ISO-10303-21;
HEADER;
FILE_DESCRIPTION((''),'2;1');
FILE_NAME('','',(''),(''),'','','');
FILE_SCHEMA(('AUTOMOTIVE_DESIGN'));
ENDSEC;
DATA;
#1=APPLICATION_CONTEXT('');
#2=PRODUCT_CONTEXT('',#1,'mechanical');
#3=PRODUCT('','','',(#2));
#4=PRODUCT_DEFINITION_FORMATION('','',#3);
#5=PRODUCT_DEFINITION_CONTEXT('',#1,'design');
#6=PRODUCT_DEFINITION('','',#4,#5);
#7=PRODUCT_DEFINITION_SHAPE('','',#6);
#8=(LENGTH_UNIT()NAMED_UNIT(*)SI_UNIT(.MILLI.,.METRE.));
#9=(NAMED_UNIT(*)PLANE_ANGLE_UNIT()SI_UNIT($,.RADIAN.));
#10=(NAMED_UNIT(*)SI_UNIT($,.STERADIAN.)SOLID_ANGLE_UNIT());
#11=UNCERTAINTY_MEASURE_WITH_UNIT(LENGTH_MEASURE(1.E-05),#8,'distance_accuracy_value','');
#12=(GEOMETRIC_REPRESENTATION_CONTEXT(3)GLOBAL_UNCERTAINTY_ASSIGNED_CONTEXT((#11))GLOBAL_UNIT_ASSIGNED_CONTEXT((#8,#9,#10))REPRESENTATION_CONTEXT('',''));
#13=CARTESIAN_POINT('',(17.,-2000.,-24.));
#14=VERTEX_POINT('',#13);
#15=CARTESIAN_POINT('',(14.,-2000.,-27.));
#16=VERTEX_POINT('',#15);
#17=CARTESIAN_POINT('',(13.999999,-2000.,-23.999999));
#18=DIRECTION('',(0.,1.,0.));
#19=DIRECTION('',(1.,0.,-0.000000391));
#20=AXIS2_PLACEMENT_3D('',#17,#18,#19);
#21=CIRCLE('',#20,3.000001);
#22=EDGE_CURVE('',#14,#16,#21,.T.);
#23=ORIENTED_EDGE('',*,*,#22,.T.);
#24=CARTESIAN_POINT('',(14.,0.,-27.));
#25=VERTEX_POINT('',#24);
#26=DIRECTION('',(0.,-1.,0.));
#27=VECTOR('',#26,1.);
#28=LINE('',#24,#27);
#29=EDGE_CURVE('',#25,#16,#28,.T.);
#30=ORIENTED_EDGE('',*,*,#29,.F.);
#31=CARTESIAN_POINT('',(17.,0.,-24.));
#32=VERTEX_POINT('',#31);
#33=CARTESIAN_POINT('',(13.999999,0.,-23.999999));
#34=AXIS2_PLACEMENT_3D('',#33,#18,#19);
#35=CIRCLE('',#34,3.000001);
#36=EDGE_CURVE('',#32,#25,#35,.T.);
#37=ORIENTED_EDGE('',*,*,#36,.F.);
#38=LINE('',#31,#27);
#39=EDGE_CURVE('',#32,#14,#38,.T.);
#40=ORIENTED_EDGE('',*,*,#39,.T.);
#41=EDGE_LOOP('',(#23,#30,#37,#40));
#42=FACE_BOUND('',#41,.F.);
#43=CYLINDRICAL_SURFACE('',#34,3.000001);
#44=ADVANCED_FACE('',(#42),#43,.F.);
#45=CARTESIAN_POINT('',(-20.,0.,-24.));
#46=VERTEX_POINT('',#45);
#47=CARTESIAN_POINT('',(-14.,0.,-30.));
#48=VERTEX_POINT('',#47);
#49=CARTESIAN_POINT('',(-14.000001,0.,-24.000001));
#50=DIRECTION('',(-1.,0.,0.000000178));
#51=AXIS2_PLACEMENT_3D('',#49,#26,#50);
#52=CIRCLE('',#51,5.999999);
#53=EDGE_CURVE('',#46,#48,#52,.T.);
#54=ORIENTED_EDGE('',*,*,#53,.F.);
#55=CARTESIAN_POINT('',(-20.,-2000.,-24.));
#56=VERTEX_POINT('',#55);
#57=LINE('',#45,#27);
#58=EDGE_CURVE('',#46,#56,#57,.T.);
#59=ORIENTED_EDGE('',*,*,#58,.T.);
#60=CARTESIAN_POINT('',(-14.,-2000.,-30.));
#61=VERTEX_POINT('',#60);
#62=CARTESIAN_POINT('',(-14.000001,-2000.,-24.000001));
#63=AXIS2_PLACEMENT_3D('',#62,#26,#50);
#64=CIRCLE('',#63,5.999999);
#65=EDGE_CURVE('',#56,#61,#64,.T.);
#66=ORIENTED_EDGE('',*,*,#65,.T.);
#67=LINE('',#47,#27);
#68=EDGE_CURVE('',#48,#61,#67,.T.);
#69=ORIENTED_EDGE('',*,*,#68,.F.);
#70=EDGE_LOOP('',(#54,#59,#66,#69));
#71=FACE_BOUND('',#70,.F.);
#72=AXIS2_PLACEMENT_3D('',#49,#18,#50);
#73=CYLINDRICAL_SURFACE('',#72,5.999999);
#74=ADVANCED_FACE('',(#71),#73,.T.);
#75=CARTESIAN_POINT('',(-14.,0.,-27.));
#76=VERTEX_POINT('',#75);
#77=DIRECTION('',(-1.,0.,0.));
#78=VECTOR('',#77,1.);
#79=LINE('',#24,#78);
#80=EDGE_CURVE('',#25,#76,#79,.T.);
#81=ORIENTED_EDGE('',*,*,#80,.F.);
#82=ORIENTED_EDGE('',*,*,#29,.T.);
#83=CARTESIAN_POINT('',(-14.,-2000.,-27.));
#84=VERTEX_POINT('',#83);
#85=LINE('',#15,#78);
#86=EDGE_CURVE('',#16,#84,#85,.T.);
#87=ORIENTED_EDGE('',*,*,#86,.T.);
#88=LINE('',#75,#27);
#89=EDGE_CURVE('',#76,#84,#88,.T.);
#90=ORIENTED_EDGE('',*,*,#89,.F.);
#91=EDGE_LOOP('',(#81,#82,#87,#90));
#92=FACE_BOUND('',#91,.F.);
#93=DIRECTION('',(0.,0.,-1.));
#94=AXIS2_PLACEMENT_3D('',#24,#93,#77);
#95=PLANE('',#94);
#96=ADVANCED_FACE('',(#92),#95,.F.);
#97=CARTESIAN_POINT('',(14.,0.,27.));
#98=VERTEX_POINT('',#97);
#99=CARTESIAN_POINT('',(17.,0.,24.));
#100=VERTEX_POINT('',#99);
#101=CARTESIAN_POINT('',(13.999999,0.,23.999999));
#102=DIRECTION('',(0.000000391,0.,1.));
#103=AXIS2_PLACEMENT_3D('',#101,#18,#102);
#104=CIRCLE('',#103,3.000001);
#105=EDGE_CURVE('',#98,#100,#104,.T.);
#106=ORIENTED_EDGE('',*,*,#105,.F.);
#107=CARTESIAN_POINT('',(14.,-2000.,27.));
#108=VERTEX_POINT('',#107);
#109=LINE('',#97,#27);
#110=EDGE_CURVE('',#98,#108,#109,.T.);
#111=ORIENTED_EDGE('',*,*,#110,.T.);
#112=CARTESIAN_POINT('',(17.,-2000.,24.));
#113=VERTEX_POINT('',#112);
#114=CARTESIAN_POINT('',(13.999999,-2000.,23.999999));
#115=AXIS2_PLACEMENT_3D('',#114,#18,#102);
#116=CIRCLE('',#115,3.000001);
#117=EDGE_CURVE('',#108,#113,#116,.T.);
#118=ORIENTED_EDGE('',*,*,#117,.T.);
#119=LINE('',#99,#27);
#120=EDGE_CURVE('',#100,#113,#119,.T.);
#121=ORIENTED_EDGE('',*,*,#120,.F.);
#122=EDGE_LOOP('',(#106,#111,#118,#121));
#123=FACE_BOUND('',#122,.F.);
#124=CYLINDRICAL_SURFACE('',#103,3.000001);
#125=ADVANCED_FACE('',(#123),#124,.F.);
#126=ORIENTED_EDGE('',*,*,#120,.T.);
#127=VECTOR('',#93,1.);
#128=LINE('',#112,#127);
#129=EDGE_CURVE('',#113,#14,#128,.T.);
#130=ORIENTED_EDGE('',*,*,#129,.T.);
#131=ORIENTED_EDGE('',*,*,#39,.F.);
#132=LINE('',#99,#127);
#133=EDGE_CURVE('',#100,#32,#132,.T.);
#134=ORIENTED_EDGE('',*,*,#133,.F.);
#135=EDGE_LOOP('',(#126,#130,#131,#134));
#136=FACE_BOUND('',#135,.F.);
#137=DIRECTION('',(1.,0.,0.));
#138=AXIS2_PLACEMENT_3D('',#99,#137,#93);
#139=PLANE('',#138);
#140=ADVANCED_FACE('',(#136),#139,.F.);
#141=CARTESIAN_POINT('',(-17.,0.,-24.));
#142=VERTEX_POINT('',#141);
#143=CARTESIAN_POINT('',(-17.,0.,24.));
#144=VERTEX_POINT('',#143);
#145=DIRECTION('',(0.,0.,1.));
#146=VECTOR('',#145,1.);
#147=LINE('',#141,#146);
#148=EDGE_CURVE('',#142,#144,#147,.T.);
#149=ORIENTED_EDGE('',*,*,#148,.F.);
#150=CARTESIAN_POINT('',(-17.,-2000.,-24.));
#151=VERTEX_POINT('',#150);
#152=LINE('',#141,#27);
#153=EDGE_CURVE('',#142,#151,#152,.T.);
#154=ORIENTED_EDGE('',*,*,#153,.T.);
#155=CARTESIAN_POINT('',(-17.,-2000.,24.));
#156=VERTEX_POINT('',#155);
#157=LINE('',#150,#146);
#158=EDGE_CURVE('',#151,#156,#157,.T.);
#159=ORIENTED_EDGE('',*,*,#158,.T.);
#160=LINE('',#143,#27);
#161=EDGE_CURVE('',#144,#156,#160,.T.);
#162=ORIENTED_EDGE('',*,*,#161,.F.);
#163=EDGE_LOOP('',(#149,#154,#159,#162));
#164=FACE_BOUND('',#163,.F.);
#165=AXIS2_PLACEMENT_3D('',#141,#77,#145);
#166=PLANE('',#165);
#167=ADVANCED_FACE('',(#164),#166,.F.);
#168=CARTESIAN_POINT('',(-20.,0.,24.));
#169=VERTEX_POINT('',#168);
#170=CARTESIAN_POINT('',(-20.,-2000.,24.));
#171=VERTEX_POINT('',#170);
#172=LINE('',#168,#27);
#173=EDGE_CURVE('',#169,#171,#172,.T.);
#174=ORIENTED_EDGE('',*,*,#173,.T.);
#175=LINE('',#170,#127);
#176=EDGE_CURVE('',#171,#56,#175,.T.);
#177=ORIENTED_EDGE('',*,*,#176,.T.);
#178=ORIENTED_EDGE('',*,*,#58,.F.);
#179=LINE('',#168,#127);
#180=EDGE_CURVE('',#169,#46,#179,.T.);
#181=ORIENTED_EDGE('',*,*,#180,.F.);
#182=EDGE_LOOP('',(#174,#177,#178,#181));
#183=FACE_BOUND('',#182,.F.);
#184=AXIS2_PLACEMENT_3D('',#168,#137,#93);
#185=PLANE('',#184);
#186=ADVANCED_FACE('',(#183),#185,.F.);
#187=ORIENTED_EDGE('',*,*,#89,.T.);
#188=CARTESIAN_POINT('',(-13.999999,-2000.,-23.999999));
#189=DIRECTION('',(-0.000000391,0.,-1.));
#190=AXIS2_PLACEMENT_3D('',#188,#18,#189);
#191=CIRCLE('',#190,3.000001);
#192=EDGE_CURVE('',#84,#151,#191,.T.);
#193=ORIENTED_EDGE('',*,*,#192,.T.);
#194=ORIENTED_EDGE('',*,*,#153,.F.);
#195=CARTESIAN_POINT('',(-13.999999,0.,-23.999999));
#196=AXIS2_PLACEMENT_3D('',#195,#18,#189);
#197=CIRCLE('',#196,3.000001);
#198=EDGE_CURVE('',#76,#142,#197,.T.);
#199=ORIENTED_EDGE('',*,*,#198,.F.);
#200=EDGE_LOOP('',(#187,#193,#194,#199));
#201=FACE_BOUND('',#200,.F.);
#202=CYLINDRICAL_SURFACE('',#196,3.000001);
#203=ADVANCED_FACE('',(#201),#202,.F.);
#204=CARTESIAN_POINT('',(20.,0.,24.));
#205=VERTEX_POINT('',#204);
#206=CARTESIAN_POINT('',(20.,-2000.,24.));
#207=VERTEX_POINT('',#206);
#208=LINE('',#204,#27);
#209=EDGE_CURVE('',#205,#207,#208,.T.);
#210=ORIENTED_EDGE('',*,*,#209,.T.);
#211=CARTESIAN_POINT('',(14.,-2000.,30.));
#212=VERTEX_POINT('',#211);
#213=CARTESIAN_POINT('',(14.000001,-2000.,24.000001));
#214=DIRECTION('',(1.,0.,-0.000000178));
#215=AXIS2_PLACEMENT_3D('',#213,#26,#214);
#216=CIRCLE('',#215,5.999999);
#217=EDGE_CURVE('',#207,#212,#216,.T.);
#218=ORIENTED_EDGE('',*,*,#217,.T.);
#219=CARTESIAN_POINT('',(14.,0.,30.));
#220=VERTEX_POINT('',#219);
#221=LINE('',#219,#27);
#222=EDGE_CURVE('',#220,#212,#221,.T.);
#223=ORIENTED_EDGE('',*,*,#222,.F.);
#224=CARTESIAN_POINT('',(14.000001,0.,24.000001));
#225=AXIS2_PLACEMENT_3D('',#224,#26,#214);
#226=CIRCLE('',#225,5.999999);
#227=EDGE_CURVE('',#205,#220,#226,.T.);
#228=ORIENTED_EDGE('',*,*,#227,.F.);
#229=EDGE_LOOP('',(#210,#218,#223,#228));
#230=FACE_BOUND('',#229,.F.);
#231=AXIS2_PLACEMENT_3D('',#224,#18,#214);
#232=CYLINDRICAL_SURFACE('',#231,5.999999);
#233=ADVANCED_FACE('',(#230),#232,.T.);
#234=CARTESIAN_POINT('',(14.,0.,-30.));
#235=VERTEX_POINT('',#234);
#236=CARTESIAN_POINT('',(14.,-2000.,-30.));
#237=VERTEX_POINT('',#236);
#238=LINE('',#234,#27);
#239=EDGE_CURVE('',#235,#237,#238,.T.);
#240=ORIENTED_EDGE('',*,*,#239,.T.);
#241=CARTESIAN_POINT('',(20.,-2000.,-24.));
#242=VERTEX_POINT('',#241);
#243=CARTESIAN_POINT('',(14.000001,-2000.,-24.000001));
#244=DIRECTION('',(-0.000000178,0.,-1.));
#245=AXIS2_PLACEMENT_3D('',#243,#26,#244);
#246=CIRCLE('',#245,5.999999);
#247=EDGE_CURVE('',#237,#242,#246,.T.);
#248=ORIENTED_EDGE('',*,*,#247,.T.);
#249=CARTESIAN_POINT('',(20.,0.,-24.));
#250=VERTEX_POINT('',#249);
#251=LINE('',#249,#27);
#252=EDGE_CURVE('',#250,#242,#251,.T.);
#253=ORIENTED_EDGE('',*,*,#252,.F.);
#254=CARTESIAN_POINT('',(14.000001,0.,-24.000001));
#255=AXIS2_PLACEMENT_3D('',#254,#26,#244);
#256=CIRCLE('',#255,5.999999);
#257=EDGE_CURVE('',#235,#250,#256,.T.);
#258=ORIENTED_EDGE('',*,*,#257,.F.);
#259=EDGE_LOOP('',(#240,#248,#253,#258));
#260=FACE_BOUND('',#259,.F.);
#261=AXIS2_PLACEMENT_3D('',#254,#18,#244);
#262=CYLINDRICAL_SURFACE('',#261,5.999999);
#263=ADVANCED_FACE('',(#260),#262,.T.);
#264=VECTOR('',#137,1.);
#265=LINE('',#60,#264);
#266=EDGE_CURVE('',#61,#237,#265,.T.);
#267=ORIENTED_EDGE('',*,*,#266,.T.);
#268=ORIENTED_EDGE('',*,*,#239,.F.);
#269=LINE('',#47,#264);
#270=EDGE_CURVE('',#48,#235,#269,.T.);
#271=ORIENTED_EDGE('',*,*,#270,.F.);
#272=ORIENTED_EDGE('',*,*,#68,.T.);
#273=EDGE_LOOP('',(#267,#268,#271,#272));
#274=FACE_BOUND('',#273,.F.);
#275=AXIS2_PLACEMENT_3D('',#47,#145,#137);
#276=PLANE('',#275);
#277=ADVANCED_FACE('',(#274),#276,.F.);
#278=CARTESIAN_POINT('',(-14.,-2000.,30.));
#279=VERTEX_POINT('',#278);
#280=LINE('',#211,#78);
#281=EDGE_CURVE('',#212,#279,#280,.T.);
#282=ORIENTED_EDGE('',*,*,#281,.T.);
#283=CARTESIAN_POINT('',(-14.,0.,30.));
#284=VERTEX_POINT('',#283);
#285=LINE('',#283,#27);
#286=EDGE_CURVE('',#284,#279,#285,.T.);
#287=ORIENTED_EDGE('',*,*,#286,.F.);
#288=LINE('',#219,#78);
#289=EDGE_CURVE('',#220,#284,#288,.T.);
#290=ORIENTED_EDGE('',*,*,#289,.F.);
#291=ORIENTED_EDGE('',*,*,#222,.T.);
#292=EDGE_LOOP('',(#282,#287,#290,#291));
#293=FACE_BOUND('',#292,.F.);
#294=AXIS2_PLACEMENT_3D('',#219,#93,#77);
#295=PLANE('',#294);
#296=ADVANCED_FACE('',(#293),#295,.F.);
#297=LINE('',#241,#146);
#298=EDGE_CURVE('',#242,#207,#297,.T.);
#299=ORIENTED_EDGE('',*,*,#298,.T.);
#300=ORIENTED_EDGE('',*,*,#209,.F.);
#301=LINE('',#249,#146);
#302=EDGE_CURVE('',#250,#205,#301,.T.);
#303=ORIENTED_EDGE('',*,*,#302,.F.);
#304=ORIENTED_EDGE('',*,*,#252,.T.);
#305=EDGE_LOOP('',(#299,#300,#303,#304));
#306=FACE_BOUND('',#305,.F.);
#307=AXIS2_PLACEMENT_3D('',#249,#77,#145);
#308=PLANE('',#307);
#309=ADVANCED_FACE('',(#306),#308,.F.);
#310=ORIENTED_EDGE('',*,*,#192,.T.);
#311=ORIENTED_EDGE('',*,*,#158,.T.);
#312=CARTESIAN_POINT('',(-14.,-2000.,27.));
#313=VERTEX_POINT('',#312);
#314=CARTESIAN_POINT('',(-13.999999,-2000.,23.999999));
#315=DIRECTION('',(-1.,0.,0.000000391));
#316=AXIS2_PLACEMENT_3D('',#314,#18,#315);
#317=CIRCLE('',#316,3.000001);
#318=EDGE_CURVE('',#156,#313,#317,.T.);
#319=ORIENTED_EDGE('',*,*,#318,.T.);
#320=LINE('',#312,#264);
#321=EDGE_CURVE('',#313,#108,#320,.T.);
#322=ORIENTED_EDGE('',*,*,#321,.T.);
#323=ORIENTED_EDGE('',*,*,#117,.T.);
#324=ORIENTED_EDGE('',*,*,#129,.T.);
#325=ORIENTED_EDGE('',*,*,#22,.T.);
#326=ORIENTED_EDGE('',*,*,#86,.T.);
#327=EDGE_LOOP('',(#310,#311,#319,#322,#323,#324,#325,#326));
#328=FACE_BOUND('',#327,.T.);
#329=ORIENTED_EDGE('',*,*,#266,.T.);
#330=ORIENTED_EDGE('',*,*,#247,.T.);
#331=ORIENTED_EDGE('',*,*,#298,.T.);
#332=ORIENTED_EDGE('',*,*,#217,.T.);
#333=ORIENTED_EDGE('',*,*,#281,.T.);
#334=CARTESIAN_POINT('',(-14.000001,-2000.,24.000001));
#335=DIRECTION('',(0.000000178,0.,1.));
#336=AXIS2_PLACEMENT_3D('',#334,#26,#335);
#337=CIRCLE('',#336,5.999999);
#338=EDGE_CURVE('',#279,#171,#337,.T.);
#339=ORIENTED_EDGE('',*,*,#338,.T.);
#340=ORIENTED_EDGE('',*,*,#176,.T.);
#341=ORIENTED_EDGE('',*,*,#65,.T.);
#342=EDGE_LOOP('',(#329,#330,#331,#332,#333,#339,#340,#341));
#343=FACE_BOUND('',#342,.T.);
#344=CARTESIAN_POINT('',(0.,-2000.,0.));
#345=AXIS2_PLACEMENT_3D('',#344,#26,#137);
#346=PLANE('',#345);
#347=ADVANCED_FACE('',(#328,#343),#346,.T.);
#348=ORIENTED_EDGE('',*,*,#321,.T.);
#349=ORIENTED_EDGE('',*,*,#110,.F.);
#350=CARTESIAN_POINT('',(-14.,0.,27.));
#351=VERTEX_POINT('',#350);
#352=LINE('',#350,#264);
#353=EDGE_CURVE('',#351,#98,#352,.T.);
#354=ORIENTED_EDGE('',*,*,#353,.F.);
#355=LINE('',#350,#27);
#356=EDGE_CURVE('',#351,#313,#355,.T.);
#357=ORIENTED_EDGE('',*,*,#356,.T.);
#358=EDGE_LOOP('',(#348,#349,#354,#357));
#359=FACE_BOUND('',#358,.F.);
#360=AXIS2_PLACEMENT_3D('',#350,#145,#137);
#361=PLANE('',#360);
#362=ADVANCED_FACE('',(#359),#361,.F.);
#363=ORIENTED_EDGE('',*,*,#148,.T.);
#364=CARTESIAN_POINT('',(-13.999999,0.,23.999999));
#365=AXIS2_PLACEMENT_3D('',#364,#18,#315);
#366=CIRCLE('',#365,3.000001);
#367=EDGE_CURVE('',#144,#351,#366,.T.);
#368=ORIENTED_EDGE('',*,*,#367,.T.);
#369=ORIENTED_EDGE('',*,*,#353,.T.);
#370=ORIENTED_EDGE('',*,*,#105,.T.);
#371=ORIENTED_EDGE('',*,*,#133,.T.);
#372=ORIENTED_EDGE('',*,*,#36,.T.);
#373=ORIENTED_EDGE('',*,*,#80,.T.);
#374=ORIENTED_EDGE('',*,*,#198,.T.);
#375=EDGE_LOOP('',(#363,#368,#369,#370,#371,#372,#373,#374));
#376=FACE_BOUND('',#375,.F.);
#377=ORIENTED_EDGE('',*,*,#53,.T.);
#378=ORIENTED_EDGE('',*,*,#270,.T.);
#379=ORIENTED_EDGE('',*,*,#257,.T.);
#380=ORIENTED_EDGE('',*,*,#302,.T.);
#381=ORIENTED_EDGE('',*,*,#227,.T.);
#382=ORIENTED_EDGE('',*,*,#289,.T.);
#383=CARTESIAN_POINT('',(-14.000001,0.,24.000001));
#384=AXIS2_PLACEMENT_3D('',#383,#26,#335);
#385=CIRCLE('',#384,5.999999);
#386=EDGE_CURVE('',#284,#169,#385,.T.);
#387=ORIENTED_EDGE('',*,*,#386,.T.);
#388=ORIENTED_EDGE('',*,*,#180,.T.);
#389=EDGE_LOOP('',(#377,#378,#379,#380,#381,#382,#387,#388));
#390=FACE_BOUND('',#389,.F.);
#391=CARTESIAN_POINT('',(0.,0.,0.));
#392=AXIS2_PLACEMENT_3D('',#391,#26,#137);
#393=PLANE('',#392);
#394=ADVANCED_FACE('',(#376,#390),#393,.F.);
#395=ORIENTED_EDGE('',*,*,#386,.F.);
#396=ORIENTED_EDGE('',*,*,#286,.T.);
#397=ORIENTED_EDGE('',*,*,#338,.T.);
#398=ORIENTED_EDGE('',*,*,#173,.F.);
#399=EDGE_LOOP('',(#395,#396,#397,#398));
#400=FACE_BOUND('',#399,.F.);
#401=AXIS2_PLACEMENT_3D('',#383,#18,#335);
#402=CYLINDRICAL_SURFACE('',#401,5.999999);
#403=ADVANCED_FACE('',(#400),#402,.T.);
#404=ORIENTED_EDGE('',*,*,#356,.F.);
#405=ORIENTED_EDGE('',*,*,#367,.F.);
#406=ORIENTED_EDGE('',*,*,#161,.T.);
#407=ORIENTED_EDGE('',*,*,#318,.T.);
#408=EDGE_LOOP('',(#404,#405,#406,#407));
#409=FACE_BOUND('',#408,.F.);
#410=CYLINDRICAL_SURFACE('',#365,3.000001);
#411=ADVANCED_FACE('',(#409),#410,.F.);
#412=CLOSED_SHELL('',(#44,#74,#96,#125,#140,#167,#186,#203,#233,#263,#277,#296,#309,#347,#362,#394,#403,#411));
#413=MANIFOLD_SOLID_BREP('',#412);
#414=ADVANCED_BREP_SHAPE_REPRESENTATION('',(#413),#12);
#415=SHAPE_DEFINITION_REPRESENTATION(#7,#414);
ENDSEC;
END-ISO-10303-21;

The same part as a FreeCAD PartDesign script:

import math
import FreeCAD as App
import Part
import Sketcher

V = App.Vector

doc = App.newDocument("Part")
body = doc.addObject("PartDesign::Body", "Body")

# Sketch on XZ plane
sketch1 = body.newObject("Sketcher::SketchObject", "Sketch")
sketch1.AttachmentSupport = (doc.getObject("XZ_Plane"), [""])
sketch1.MapMode = "FlatFace"
sketch1.addGeometry([
    Part.LineSegment(V(14, 30, 0), V(-14, 30, 0)),  # 0
    Part.ArcOfCircle(Part.Circle(V(-14, 24, 0), V(0, 0, 1), 6), math.radians(90), math.radians(180)),  # 1
    Part.LineSegment(V(-20, 24, 0), V(-20, -24, 0)),  # 2
    Part.ArcOfCircle(Part.Circle(V(-14, -24, 0), V(0, 0, 1), 6), math.radians(180), math.radians(270)),  # 3
    Part.LineSegment(V(-14, -30, 0), V(14, -30, 0)),  # 4
    Part.ArcOfCircle(Part.Circle(V(14, -24, 0), V(0, 0, 1), 6), math.radians(-90), math.radians(0)),  # 5
    Part.LineSegment(V(20, -24, 0), V(20, 24, 0)),  # 6
    Part.ArcOfCircle(Part.Circle(V(14, 24, 0), V(0, 0, 1), 6), math.radians(0), math.radians(90)),  # 7
    Part.ArcOfCircle(Part.Circle(V(-14, -24, 0), V(0, 0, 1), 3), math.radians(-180), math.radians(-90)),  # 8
    Part.LineSegment(V(-17, -24, 0), V(-17, 24, 0)),  # 9
    Part.ArcOfCircle(Part.Circle(V(-14, 24, 0), V(0, 0, 1), 3), math.radians(90), math.radians(180)),  # 10
    Part.LineSegment(V(-14, 27, 0), V(14, 27, 0)),  # 11
    Part.ArcOfCircle(Part.Circle(V(14, 24, 0), V(0, 0, 1), 3), math.radians(0), math.radians(90)),  # 12
    Part.LineSegment(V(17, 24, 0), V(17, -24, 0)),  # 13
    Part.ArcOfCircle(Part.Circle(V(14, -24, 0), V(0, 0, 1), 3), math.radians(-90), math.radians(0)),  # 14
    Part.LineSegment(V(14, -27, 0), V(-14, -27, 0)),  # 15
], False)
sketch1.addConstraint([
    Sketcher.Constraint("Tangent", 0, 2, 1, 1),
    Sketcher.Constraint("Tangent", 1, 2, 2, 1),
    Sketcher.Constraint("Tangent", 2, 2, 3, 1),
    Sketcher.Constraint("Tangent", 3, 2, 4, 1),
    Sketcher.Constraint("Tangent", 4, 2, 5, 1),
    Sketcher.Constraint("Tangent", 5, 2, 6, 1),
    Sketcher.Constraint("Tangent", 6, 2, 7, 1),
    Sketcher.Constraint("Tangent", 7, 2, 0, 1),
    Sketcher.Constraint("Tangent", 8, 1, 9, 1),
    Sketcher.Constraint("Tangent", 9, 2, 10, 2),
    Sketcher.Constraint("Tangent", 10, 1, 11, 1),
    Sketcher.Constraint("Tangent", 11, 2, 12, 2),
    Sketcher.Constraint("Tangent", 12, 1, 13, 1),
    Sketcher.Constraint("Tangent", 13, 2, 14, 2),
    Sketcher.Constraint("Tangent", 14, 1, 15, 1),
    Sketcher.Constraint("Tangent", 15, 2, 8, 2),
    Sketcher.Constraint("Horizontal", 0),
    Sketcher.Constraint("Vertical", 2),
    Sketcher.Constraint("Horizontal", 4),
    Sketcher.Constraint("Vertical", 6),
    Sketcher.Constraint("Vertical", 9),
    Sketcher.Constraint("Horizontal", 11),
    Sketcher.Constraint("Vertical", 13),
    Sketcher.Constraint("Horizontal", 15),
    Sketcher.Constraint("Coincident", 8, 3, 3, 3),
    Sketcher.Constraint("Coincident", 10, 3, 1, 3),
    Sketcher.Constraint("Coincident", 12, 3, 7, 3),
    Sketcher.Constraint("Equal", 1, 3),
    Sketcher.Constraint("Equal", 3, 5),
    Sketcher.Constraint("Equal", 5, 7),
    Sketcher.Constraint("Equal", 12, 14),
    Sketcher.Constraint("Symmetric", 1, 3, 5, 3, -1, 1),
    Sketcher.Constraint("Radius", 1, 5.999999),
    Sketcher.Constraint("Radius", 8, 3.000001),
    Sketcher.Constraint("DistanceX", 0, 2, 0, 1, 28.0),
    Sketcher.Constraint("DistanceY", 2, 2, 2, 1, 48.0),
])
pad1 = body.newObject("PartDesign::Pad", "Pad")
pad1.Profile = sketch1
pad1.Length = 2000

doc.recompute()
